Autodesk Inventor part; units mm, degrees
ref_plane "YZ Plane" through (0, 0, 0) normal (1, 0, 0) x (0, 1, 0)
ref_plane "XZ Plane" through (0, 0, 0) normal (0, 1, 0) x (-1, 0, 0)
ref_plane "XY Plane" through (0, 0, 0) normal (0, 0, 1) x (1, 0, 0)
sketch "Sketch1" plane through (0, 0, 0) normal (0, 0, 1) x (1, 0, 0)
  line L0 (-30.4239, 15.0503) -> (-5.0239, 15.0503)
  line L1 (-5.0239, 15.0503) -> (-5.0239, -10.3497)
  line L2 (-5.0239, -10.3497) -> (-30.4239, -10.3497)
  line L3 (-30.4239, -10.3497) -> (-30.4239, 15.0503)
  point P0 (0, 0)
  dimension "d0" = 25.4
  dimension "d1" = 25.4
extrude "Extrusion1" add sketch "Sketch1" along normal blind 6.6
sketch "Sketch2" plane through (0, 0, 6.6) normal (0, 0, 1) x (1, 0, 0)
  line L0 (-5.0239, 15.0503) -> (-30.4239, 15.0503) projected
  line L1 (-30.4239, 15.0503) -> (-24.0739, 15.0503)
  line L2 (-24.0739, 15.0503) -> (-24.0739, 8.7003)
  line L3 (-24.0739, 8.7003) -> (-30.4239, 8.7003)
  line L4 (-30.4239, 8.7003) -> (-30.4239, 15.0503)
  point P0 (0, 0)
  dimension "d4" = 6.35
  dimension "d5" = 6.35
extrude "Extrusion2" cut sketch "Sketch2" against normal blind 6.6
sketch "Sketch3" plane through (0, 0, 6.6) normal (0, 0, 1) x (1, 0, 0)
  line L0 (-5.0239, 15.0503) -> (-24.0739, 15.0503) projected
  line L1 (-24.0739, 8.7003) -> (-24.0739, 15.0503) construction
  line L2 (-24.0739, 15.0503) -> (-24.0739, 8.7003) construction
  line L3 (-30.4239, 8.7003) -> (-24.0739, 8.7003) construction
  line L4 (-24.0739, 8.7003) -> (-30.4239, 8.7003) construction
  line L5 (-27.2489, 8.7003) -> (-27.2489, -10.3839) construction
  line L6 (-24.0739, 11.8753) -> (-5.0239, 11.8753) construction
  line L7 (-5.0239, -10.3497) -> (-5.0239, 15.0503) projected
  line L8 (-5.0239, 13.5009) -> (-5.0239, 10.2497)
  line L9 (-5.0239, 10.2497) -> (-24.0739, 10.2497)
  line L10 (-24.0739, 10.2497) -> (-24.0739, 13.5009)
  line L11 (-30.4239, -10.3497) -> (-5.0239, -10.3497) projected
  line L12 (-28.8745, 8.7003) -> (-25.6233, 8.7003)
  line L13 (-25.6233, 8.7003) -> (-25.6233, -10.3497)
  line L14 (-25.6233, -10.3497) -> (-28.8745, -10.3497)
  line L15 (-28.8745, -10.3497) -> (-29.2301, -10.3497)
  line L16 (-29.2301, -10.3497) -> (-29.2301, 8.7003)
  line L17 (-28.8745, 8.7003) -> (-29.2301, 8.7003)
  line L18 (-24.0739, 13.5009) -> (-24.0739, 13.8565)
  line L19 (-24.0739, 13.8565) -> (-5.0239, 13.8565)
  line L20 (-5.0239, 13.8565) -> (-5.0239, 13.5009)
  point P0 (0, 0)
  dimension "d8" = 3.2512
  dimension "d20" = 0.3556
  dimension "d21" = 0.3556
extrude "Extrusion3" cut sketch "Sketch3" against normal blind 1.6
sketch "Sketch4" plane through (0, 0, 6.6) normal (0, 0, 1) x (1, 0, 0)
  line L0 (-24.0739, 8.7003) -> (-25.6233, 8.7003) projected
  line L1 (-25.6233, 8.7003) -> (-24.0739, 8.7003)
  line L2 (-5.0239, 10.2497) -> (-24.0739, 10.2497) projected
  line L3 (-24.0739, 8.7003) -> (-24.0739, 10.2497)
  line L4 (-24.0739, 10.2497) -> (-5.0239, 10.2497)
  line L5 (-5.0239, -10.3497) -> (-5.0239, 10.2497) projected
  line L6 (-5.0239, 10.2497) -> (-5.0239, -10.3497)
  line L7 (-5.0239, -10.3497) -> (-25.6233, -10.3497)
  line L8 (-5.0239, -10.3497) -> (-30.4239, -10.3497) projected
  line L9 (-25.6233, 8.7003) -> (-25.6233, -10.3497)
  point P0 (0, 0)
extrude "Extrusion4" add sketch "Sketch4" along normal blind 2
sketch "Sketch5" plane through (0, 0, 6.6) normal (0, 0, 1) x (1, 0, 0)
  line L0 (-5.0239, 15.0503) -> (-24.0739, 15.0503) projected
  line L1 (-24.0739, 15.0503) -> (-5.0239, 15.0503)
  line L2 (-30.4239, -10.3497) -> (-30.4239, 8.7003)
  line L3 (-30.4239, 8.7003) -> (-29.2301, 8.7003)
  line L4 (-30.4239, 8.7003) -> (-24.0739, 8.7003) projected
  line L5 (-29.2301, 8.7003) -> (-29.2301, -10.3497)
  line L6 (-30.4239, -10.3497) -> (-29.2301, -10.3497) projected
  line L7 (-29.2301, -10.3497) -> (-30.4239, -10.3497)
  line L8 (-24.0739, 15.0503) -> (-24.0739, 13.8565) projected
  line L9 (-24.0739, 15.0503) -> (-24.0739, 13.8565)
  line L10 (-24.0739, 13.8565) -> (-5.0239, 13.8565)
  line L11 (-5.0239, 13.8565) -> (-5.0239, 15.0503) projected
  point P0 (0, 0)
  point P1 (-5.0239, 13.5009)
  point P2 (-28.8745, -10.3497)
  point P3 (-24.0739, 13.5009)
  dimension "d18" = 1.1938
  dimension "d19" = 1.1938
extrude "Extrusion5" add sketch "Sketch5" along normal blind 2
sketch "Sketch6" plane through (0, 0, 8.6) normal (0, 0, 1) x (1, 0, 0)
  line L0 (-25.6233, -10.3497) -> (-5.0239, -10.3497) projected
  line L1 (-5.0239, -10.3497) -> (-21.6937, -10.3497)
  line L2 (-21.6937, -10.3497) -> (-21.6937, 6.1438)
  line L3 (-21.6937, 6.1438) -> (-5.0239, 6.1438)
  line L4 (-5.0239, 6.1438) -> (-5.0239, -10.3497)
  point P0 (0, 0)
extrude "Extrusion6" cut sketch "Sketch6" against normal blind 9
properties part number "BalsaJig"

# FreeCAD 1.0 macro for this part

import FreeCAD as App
import Part
import Sketcher
Q = App.Units.Quantity

doc = App.newDocument("Part")
body = doc.addObject("PartDesign::Body", "Body")

sketch1 = body.newObject("Sketcher::SketchObject", "Sketch")
sketch1.AttachmentSupport = (doc.getObject("XY_Plane"), [""])
sketch1.MapMode = "FlatFace"
sketch1.addGeometry([
    Part.LineSegment(App.Vector(-5, 15, 0), App.Vector(-30, 15, 0)),
    Part.LineSegment(App.Vector(-30, 15, 0), App.Vector(-30, -10, 0)),
    Part.LineSegment(App.Vector(-30, -10, 0), App.Vector(-5, -10, 0)),
    Part.LineSegment(App.Vector(-5, -10, 0), App.Vector(-5, 15, 0)),
], False)
sketch1.addConstraint([
    Sketcher.Constraint("Coincident", 0, 2, 1, 1),
    Sketcher.Constraint("Coincident", 1, 2, 2, 1),
    Sketcher.Constraint("Coincident", 2, 2, 3, 1),
    Sketcher.Constraint("Coincident", 3, 2, 0, 1),
    Sketcher.Constraint("Horizontal", 0),
    Sketcher.Constraint("Vertical", 1),
    Sketcher.Constraint("Horizontal", 2),
    Sketcher.Constraint("Vertical", 3),
    Sketcher.Constraint("Equal", 2, 1),
    Sketcher.Constraint("DistanceX", 0, 2, 0, 1, Q("1 in")),
    Sketcher.Constraint("DistanceX", 0, 2, -1, 1, Q("1.1978 in")),
    Sketcher.Constraint("DistanceY", -1, 1, 0, 2, 15.0503),
])
pad1 = body.newObject("PartDesign::Pad", "Pad")
pad1.Profile = sketch1
pad1.Length = 6.6

sketch2 = body.newObject("Sketcher::SketchObject", "Sketch001")
sketch2.AttachmentSupport = (doc.getObject("XY_Plane"), [""])
sketch2.MapMode = "FlatFace"
sketch2.AttachmentOffset = App.Placement(App.Vector(0, 0, 6.6), App.Rotation())
sketch2.addGeometry([
    Part.LineSegment(App.Vector(-24, 9, 0), App.Vector(-24, 15, 0)),
    Part.LineSegment(App.Vector(-24, 15, 0), App.Vector(-30, 15, 0)),
    Part.LineSegment(App.Vector(-30, 15, 0), App.Vector(-30, 9, 0)),
    Part.LineSegment(App.Vector(-30, 9, 0), App.Vector(-24, 9, 0)),
], False)
sketch2.addConstraint([
    Sketcher.Constraint("Coincident", 0, 2, 1, 1),
    Sketcher.Constraint("Coincident", 1, 2, 2, 1),
    Sketcher.Constraint("Coincident", 2, 2, 3, 1),
    Sketcher.Constraint("Coincident", 3, 2, 0, 1),
    Sketcher.Constraint("Vertical", 0),
    Sketcher.Constraint("Horizontal", 1),
    Sketcher.Constraint("Vertical", 2),
    Sketcher.Constraint("Horizontal", 3),
    Sketcher.Constraint("Equal", 3, 0),
    Sketcher.Constraint("DistanceX", 1, 2, 1, 1, Q("0.25 in")),
    Sketcher.Constraint("DistanceX", 0, 2, -1, 1, Q("0.9478 in")),
    Sketcher.Constraint("DistanceY", -1, 1, 0, 2, 15.0503),
])
pocket1 = body.newObject("PartDesign::Pocket", "Pocket")
pocket1.Profile = sketch2
pocket1.Length = 6.6

sketch3 = body.newObject("Sketcher::SketchObject", "Sketch002")
sketch3.AttachmentSupport = (doc.getObject("XY_Plane"), [""])
sketch3.MapMode = "FlatFace"
sketch3.AttachmentOffset = App.Placement(App.Vector(0, 0, 6.6), App.Rotation())
sketch3.addGeometry([
    Part.LineSegment(App.Vector(-24.1, 10.2, 0), App.Vector(-5, 10.2, 0)),
    Part.LineSegment(App.Vector(-5, 10.2, 0), App.Vector(-5, 13.9, 0)),
    Part.LineSegment(App.Vector(-5, 13.9, 0), App.Vector(-24.1, 13.9, 0)),
    Part.LineSegment(App.Vector(-24.1, 13.9, 0), App.Vector(-24.1, 10.2, 0)),
    Part.LineSegment(App.Vector(-29.2, -10.3, 0), App.Vector(-25.6, -10.3, 0)),
    Part.LineSegment(App.Vector(-25.6, -10.3, 0), App.Vector(-25.6, 8.7, 0)),
    Part.LineSegment(App.Vector(-25.6, 8.7, 0), App.Vector(-29.2, 8.7, 0)),
    Part.LineSegment(App.Vector(-29.2, 8.7, 0), App.Vector(-29.2, -10.3, 0)),
], False)
sketch3.addConstraint([
    Sketcher.Constraint("Coincident", 0, 2, 1, 1),
    Sketcher.Constraint("Coincident", 1, 2, 2, 1),
    Sketcher.Constraint("Coincident", 2, 2, 3, 1),
    Sketcher.Constraint("Coincident", 3, 2, 0, 1),
    Sketcher.Constraint("Coincident", 4, 2, 5, 1),
    Sketcher.Constraint("Coincident", 5, 2, 6, 1),
    Sketcher.Constraint("Coincident", 6, 2, 7, 1),
    Sketcher.Constraint("Coincident", 7, 2, 4, 1),
    Sketcher.Constraint("Horizontal", 0),
    Sketcher.Constraint("Vertical", 1),
    Sketcher.Constraint("Horizontal", 2),
    Sketcher.Constraint("Vertical", 3),
    Sketcher.Constraint("Horizontal", 4),
    Sketcher.Constraint("Vertical", 5),
    Sketcher.Constraint("Horizontal", 6),
    Sketcher.Constraint("Vertical", 7),
    Sketcher.Constraint("Equal", 6, 1),
    Sketcher.Constraint("Equal", 2, 5),
    Sketcher.Constraint("DistanceX", 0, 1, 0, 2, Q("0.75 in")),
    Sketcher.Constraint("DistanceX", 4, 1, 4, 2, Q("0.142 in")),
    Sketcher.Constraint("DistanceX", 4, 2, 3, 2, Q("0.061 in")),
    Sketcher.Constraint("DistanceY", 4, 2, 3, 2, Q("0.811 in")),
    Sketcher.Constraint("DistanceX", 0, 2, -1, 1, Q("0.1978 in")),
    Sketcher.Constraint("DistanceY", -1, 1, 0, 2, 10.2497),
])
pocket2 = body.newObject("PartDesign::Pocket", "Pocket001")
pocket2.Profile = sketch3
pocket2.Length = Q("0.0629921 in")

sketch4 = body.newObject("Sketcher::SketchObject", "Sketch003")
sketch4.AttachmentSupport = (doc.getObject("XY_Plane"), [""])
sketch4.MapMode = "FlatFace"
sketch4.AttachmentOffset = App.Placement(App.Vector(0, 0, 6.6), App.Rotation())
sketch4.addGeometry([
    Part.LineSegment(App.Vector(-24.1, 10.2, 0), App.Vector(-24.1, 8.7, 0)),
    Part.LineSegment(App.Vector(-24.1, 8.7, 0), App.Vector(-25.6, 8.7, 0)),
    Part.LineSegment(App.Vector(-25.6, 8.7, 0), App.Vector(-25.6, -10.3, 0)),
    Part.LineSegment(App.Vector(-25.6, -10.3, 0), App.Vector(-5, -10.3, 0)),
    Part.LineSegment(App.Vector(-5, -10.3, 0), App.Vector(-5, 10.2, 0)),
    Part.LineSegment(App.Vector(-5, 10.2, 0), App.Vector(-24.1, 10.2, 0)),
], False)
sketch4.addConstraint([
    Sketcher.Constraint("Coincident", 0, 2, 1, 1),
    Sketcher.Constraint("Coincident", 1, 2, 2, 1),
    Sketcher.Constraint("Coincident", 2, 2, 3, 1),
    Sketcher.Constraint("Coincident", 3, 2, 4, 1),
    Sketcher.Constraint("Coincident", 4, 2, 5, 1),
    Sketcher.Constraint("Coincident", 5, 2, 0, 1),
    Sketcher.Constraint("Vertical", 0),
    Sketcher.Constraint("Horizontal", 1),
    Sketcher.Constraint("Vertical", 2),
    Sketcher.Constraint("Horizontal", 3),
    Sketcher.Constraint("Vertical", 4),
    Sketcher.Constraint("Horizontal", 5),
    Sketcher.Constraint("Equal", 1, 0),
    Sketcher.Constraint("Equal", 5, 2),
    Sketcher.Constraint("DistanceX", 5, 2, 5, 1, Q("0.75 in")),
    Sketcher.Constraint("DistanceX", 1, 2, 1, 1, Q("0.061 in")),
    Sketcher.Constraint("DistanceX", 0, 2, -1, 1, Q("0.9478 in")),
    Sketcher.Constraint("DistanceY", -1, 1, 0, 2, 8.7003),
])
pad2 = body.newObject("PartDesign::Pad", "Pad001")
pad2.Profile = sketch4
pad2.Length = 2

sketch5 = body.newObject("Sketcher::SketchObject", "Sketch004")
sketch5.AttachmentSupport = (doc.getObject("XY_Plane"), [""])
sketch5.MapMode = "FlatFace"
sketch5.AttachmentOffset = App.Placement(App.Vector(0, 0, 6.6), App.Rotation())
sketch5.addGeometry([
    Part.LineSegment(App.Vector(-5, 13.9, 0), App.Vector(-5, 15.1, 0)),
    Part.LineSegment(App.Vector(-5, 15.1, 0), App.Vector(-24.1, 15.1, 0)),
    Part.LineSegment(App.Vector(-24.1, 15.1, 0), App.Vector(-24.1, 13.9, 0)),
    Part.LineSegment(App.Vector(-24.1, 13.9, 0), App.Vector(-5, 13.9, 0)),
    Part.LineSegment(App.Vector(-30.4, 8.7, 0), App.Vector(-30.4, -10.3, 0)),
    Part.LineSegment(App.Vector(-30.4, -10.3, 0), App.Vector(-29.2, -10.3, 0)),
    Part.LineSegment(App.Vector(-29.2, -10.3, 0), App.Vector(-29.2, 8.7, 0)),
    Part.LineSegment(App.Vector(-29.2, 8.7, 0), App.Vector(-30.4, 8.7, 0)),
], False)
sketch5.addConstraint([
    Sketcher.Constraint("Coincident", 0, 2, 1, 1),
    Sketcher.Constraint("Coincident", 1, 2, 2, 1),
    Sketcher.Constraint("Coincident", 2, 2, 3, 1),
    Sketcher.Constraint("Coincident", 3, 2, 0, 1),
    Sketcher.Constraint("Coincident", 4, 2, 5, 1),
    Sketcher.Constraint("Coincident", 5, 2, 6, 1),
    Sketcher.Constraint("Coincident", 6, 2, 7, 1),
    Sketcher.Constraint("Coincident", 7, 2, 4, 1),
    Sketcher.Constraint("Vertical", 0),
    Sketcher.Constraint("Horizontal", 1),
    Sketcher.Constraint("Vertical", 2),
    Sketcher.Constraint("Horizontal", 3),
    Sketcher.Constraint("Vertical", 4),
    Sketcher.Constraint("Horizontal", 5),
    Sketcher.Constraint("Vertical", 6),
    Sketcher.Constraint("Horizontal", 7),
    Sketcher.Constraint("Equal", 7, 0),
    Sketcher.Constraint("Equal", 3, 4),
    Sketcher.Constraint("DistanceX", 5, 1, 5, 2, Q("0.047 in")),
    Sketcher.Constraint("DistanceY", 4, 2, 1, 2, Q("1 in")),
    Sketcher.Constraint("DistanceX", 4, 2, 3, 2, Q("1 in")),
    Sketcher.Constraint("DistanceX", 1, 2, 1, 1, Q("0.75 in")),
    Sketcher.Constraint("DistanceX", 0, 2, -1, 1, Q("0.1978 in")),
    Sketcher.Constraint("DistanceY", -1, 1, 0, 2, 15.0503),
])
pad3 = body.newObject("PartDesign::Pad", "Pad002")
pad3.Profile = sketch5
pad3.Length = 2

sketch6 = body.newObject("Sketcher::SketchObject", "Sketch005")
sketch6.AttachmentSupport = (doc.getObject("XY_Plane"), [""])
sketch6.MapMode = "FlatFace"
sketch6.AttachmentOffset = App.Placement(App.Vector(0, 0, 8.6), App.Rotation())
sketch6.addGeometry([
    Part.LineSegment(App.Vector(-22, 6, 0), App.Vector(-22, -10, 0)),
    Part.LineSegment(App.Vector(-22, -10, 0), App.Vector(-5, -10, 0)),
    Part.LineSegment(App.Vector(-5, -10, 0), App.Vector(-5, 6, 0)),
    Part.LineSegment(App.Vector(-5, 6, 0), App.Vector(-22, 6, 0)),
], False)
sketch6.addConstraint([
    Sketcher.Constraint("Coincident", 0, 2, 1, 1),
    Sketcher.Constraint("Coincident", 1, 2, 2, 1),
    Sketcher.Constraint("Coincident", 2, 2, 3, 1),
    Sketcher.Constraint("Coincident", 3, 2, 0, 1),
    Sketcher.Constraint("Vertical", 0),
    Sketcher.Constraint("Horizontal", 1),
    Sketcher.Constraint("Vertical", 2),
    Sketcher.Constraint("Horizontal", 3),
    Sketcher.Constraint("DistanceX", 1, 1, 1, 2, Q("0.6563 in")),
    Sketcher.Constraint("DistanceY", 0, 2, 0, 1, 16.4935),
    Sketcher.Constraint("DistanceX", 1, 2, -1, 1, Q("0.1978 in")),
    Sketcher.Constraint("DistanceY", 0, 2, -1, 1, 10.3497),
])
pocket3 = body.newObject("PartDesign::Pocket", "Pocket002")
pocket3.Profile = sketch6
pocket3.Length = 9

doc.recompute()
